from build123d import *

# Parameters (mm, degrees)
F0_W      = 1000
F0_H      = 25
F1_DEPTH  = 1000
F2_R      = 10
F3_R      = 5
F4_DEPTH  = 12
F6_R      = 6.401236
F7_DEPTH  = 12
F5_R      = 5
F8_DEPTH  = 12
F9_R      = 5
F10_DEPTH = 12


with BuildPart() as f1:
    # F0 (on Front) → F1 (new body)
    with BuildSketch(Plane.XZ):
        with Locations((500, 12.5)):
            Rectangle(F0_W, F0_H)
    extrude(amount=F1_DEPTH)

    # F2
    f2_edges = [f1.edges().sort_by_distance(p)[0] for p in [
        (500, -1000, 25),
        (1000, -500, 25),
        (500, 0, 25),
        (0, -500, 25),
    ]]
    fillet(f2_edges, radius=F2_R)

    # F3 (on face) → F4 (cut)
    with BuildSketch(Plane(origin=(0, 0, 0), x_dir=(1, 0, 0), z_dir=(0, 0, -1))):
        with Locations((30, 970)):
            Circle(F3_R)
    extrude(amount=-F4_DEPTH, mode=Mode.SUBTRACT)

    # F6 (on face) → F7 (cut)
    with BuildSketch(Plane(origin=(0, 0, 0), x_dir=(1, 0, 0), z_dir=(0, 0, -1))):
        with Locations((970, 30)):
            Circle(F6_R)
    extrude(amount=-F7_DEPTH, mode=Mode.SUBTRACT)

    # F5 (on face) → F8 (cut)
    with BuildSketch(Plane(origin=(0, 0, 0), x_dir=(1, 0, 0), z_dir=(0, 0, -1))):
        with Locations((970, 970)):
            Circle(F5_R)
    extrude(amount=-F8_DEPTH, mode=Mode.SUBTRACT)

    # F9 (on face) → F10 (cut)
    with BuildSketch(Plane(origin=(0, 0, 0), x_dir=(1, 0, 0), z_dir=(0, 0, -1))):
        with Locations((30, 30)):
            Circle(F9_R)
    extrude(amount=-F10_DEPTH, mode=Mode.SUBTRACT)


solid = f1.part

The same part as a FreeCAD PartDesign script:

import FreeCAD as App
import Part
import Sketcher

V = App.Vector
Q = App.Units.Quantity


def edges_at(feature, points):
    """Names of the edges that pass closest to the given points."""
    edges = feature.Shape.Edges
    near = lambda p: min(range(len(edges)), key=lambda i: edges[i].distToShape(Part.Vertex(*p))[0])
    return sorted({f"Edge{near(p) + 1}" for p in points})

doc = App.newDocument("Part")
body = doc.addObject("PartDesign::Body", "Body")

sketch1 = body.newObject("Sketcher::SketchObject", "Sketch")
sketch1.AttachmentSupport = (doc.getObject("XZ_Plane"), [""])
sketch1.MapMode = "FlatFace"
sketch1.addGeometry([
    Part.LineSegment(V(0, 25, 0), V(0, 0, 0)),
    Part.LineSegment(V(0, 0, 0), V(1000, 0, 0)),
    Part.LineSegment(V(1000, 0, 0), V(1000, 25, 0)),
    Part.LineSegment(V(1000, 25, 0), V(0, 25, 0)),
], False)
sketch1.addConstraint([
    Sketcher.Constraint("Coincident", 0, 2, 1, 1),
    Sketcher.Constraint("Coincident", 1, 2, 2, 1),
    Sketcher.Constraint("Coincident", 2, 2, 3, 1),
    Sketcher.Constraint("Coincident", 3, 2, 0, 1),
    Sketcher.Constraint("Vertical", 0),
    Sketcher.Constraint("Horizontal", 1),
    Sketcher.Constraint("Vertical", 2),
    Sketcher.Constraint("Horizontal", 3),
    Sketcher.Constraint("Coincident", 0, 2, -1, 1),
    Sketcher.Constraint("DistanceX", 1, 1, 1, 2, Q("1000 mm")),
    Sketcher.Constraint("DistanceY", 0, 2, 0, 1, Q("25 mm")),
])
pad1 = body.newObject("PartDesign::Pad", "Pad")
pad1.Profile = sketch1
pad1.Length = 1000
doc.recompute()

fillet = body.newObject("PartDesign::Fillet", "Fillet")
fillet.Base = (pad1, edges_at(pad1, [
    (500, -1000, 25),
    (1000, -500, 25),
    (500, 0, 25),
    (0, -500, 25),
]))
fillet.Radius = 10

sketch2 = body.newObject("Sketcher::SketchObject", "Sketch001")
sketch2.AttachmentSupport = (doc.getObject("XY_Plane"), [""])
sketch2.MapMode = "FlatFace"
sketch2.addGeometry(Part.Circle(V(30, -970, 0), V(0, 0, 1), 5), False)
sketch2.addConstraint([
    Sketcher.Constraint("Diameter", 0, Q("10 mm")),
    Sketcher.Constraint("DistanceX", -1, 1, 0, 3, Q("30 mm")),
    Sketcher.Constraint("DistanceY", 0, 3, -1, 1, Q("970 mm")),
])
pocket1 = body.newObject("PartDesign::Pocket", "Pocket")
pocket1.Profile = sketch2
pocket1.Length = 12
pocket1.Reversed = True

sketch3 = body.newObject("Sketcher::SketchObject", "Sketch002")
sketch3.AttachmentSupport = (doc.getObject("XY_Plane"), [""])
sketch3.MapMode = "FlatFace"
sketch3.addGeometry(Part.Circle(V(970, -30, 0), V(0, 0, 1), 6), False)
sketch3.addConstraint([
    Sketcher.Constraint("DistanceX", -1, 1, 0, 3, Q("970 mm")),
    Sketcher.Constraint("DistanceY", 0, 3, -1, 1, Q("30 mm")),
    Sketcher.Constraint("Diameter", 0, Q("12.802472 mm")),
])
pocket2 = body.newObject("PartDesign::Pocket", "Pocket001")
pocket2.Profile = sketch3
pocket2.Length = 12
pocket2.Reversed = True

sketch4 = body.newObject("Sketcher::SketchObject", "Sketch003")
sketch4.AttachmentSupport = (doc.getObject("XY_Plane"), [""])
sketch4.MapMode = "FlatFace"
sketch4.addGeometry(Part.Circle(V(970, -970, 0), V(0, 0, 1), 5), False)
sketch4.addConstraint([
    Sketcher.Constraint("Diameter", 0, Q("10 mm")),
    Sketcher.Constraint("DistanceX", -1, 1, 0, 3, Q("970 mm")),
    Sketcher.Constraint("DistanceY", 0, 3, -1, 1, Q("970 mm")),
])
pocket3 = body.newObject("PartDesign::Pocket", "Pocket002")
pocket3.Profile = sketch4
pocket3.Length = 12
pocket3.Reversed = True

sketch5 = body.newObject("Sketcher::SketchObject", "Sketch004")
sketch5.AttachmentSupport = (doc.getObject("XY_Plane"), [""])
sketch5.MapMode = "FlatFace"
sketch5.addGeometry(Part.Circle(V(30, -30, 0), V(0, 0, 1), 5), False)
sketch5.addConstraint([
    Sketcher.Constraint("Diameter", 0, Q("10 mm")),
    Sketcher.Constraint("DistanceX", -1, 1, 0, 3, Q("30 mm")),
    Sketcher.Constraint("DistanceY", 0, 3, -1, 1, Q("30 mm")),
])
pocket4 = body.newObject("PartDesign::Pocket", "Pocket003")
pocket4.Profile = sketch5
pocket4.Length = 12
pocket4.Reversed = True

doc.recompute()
